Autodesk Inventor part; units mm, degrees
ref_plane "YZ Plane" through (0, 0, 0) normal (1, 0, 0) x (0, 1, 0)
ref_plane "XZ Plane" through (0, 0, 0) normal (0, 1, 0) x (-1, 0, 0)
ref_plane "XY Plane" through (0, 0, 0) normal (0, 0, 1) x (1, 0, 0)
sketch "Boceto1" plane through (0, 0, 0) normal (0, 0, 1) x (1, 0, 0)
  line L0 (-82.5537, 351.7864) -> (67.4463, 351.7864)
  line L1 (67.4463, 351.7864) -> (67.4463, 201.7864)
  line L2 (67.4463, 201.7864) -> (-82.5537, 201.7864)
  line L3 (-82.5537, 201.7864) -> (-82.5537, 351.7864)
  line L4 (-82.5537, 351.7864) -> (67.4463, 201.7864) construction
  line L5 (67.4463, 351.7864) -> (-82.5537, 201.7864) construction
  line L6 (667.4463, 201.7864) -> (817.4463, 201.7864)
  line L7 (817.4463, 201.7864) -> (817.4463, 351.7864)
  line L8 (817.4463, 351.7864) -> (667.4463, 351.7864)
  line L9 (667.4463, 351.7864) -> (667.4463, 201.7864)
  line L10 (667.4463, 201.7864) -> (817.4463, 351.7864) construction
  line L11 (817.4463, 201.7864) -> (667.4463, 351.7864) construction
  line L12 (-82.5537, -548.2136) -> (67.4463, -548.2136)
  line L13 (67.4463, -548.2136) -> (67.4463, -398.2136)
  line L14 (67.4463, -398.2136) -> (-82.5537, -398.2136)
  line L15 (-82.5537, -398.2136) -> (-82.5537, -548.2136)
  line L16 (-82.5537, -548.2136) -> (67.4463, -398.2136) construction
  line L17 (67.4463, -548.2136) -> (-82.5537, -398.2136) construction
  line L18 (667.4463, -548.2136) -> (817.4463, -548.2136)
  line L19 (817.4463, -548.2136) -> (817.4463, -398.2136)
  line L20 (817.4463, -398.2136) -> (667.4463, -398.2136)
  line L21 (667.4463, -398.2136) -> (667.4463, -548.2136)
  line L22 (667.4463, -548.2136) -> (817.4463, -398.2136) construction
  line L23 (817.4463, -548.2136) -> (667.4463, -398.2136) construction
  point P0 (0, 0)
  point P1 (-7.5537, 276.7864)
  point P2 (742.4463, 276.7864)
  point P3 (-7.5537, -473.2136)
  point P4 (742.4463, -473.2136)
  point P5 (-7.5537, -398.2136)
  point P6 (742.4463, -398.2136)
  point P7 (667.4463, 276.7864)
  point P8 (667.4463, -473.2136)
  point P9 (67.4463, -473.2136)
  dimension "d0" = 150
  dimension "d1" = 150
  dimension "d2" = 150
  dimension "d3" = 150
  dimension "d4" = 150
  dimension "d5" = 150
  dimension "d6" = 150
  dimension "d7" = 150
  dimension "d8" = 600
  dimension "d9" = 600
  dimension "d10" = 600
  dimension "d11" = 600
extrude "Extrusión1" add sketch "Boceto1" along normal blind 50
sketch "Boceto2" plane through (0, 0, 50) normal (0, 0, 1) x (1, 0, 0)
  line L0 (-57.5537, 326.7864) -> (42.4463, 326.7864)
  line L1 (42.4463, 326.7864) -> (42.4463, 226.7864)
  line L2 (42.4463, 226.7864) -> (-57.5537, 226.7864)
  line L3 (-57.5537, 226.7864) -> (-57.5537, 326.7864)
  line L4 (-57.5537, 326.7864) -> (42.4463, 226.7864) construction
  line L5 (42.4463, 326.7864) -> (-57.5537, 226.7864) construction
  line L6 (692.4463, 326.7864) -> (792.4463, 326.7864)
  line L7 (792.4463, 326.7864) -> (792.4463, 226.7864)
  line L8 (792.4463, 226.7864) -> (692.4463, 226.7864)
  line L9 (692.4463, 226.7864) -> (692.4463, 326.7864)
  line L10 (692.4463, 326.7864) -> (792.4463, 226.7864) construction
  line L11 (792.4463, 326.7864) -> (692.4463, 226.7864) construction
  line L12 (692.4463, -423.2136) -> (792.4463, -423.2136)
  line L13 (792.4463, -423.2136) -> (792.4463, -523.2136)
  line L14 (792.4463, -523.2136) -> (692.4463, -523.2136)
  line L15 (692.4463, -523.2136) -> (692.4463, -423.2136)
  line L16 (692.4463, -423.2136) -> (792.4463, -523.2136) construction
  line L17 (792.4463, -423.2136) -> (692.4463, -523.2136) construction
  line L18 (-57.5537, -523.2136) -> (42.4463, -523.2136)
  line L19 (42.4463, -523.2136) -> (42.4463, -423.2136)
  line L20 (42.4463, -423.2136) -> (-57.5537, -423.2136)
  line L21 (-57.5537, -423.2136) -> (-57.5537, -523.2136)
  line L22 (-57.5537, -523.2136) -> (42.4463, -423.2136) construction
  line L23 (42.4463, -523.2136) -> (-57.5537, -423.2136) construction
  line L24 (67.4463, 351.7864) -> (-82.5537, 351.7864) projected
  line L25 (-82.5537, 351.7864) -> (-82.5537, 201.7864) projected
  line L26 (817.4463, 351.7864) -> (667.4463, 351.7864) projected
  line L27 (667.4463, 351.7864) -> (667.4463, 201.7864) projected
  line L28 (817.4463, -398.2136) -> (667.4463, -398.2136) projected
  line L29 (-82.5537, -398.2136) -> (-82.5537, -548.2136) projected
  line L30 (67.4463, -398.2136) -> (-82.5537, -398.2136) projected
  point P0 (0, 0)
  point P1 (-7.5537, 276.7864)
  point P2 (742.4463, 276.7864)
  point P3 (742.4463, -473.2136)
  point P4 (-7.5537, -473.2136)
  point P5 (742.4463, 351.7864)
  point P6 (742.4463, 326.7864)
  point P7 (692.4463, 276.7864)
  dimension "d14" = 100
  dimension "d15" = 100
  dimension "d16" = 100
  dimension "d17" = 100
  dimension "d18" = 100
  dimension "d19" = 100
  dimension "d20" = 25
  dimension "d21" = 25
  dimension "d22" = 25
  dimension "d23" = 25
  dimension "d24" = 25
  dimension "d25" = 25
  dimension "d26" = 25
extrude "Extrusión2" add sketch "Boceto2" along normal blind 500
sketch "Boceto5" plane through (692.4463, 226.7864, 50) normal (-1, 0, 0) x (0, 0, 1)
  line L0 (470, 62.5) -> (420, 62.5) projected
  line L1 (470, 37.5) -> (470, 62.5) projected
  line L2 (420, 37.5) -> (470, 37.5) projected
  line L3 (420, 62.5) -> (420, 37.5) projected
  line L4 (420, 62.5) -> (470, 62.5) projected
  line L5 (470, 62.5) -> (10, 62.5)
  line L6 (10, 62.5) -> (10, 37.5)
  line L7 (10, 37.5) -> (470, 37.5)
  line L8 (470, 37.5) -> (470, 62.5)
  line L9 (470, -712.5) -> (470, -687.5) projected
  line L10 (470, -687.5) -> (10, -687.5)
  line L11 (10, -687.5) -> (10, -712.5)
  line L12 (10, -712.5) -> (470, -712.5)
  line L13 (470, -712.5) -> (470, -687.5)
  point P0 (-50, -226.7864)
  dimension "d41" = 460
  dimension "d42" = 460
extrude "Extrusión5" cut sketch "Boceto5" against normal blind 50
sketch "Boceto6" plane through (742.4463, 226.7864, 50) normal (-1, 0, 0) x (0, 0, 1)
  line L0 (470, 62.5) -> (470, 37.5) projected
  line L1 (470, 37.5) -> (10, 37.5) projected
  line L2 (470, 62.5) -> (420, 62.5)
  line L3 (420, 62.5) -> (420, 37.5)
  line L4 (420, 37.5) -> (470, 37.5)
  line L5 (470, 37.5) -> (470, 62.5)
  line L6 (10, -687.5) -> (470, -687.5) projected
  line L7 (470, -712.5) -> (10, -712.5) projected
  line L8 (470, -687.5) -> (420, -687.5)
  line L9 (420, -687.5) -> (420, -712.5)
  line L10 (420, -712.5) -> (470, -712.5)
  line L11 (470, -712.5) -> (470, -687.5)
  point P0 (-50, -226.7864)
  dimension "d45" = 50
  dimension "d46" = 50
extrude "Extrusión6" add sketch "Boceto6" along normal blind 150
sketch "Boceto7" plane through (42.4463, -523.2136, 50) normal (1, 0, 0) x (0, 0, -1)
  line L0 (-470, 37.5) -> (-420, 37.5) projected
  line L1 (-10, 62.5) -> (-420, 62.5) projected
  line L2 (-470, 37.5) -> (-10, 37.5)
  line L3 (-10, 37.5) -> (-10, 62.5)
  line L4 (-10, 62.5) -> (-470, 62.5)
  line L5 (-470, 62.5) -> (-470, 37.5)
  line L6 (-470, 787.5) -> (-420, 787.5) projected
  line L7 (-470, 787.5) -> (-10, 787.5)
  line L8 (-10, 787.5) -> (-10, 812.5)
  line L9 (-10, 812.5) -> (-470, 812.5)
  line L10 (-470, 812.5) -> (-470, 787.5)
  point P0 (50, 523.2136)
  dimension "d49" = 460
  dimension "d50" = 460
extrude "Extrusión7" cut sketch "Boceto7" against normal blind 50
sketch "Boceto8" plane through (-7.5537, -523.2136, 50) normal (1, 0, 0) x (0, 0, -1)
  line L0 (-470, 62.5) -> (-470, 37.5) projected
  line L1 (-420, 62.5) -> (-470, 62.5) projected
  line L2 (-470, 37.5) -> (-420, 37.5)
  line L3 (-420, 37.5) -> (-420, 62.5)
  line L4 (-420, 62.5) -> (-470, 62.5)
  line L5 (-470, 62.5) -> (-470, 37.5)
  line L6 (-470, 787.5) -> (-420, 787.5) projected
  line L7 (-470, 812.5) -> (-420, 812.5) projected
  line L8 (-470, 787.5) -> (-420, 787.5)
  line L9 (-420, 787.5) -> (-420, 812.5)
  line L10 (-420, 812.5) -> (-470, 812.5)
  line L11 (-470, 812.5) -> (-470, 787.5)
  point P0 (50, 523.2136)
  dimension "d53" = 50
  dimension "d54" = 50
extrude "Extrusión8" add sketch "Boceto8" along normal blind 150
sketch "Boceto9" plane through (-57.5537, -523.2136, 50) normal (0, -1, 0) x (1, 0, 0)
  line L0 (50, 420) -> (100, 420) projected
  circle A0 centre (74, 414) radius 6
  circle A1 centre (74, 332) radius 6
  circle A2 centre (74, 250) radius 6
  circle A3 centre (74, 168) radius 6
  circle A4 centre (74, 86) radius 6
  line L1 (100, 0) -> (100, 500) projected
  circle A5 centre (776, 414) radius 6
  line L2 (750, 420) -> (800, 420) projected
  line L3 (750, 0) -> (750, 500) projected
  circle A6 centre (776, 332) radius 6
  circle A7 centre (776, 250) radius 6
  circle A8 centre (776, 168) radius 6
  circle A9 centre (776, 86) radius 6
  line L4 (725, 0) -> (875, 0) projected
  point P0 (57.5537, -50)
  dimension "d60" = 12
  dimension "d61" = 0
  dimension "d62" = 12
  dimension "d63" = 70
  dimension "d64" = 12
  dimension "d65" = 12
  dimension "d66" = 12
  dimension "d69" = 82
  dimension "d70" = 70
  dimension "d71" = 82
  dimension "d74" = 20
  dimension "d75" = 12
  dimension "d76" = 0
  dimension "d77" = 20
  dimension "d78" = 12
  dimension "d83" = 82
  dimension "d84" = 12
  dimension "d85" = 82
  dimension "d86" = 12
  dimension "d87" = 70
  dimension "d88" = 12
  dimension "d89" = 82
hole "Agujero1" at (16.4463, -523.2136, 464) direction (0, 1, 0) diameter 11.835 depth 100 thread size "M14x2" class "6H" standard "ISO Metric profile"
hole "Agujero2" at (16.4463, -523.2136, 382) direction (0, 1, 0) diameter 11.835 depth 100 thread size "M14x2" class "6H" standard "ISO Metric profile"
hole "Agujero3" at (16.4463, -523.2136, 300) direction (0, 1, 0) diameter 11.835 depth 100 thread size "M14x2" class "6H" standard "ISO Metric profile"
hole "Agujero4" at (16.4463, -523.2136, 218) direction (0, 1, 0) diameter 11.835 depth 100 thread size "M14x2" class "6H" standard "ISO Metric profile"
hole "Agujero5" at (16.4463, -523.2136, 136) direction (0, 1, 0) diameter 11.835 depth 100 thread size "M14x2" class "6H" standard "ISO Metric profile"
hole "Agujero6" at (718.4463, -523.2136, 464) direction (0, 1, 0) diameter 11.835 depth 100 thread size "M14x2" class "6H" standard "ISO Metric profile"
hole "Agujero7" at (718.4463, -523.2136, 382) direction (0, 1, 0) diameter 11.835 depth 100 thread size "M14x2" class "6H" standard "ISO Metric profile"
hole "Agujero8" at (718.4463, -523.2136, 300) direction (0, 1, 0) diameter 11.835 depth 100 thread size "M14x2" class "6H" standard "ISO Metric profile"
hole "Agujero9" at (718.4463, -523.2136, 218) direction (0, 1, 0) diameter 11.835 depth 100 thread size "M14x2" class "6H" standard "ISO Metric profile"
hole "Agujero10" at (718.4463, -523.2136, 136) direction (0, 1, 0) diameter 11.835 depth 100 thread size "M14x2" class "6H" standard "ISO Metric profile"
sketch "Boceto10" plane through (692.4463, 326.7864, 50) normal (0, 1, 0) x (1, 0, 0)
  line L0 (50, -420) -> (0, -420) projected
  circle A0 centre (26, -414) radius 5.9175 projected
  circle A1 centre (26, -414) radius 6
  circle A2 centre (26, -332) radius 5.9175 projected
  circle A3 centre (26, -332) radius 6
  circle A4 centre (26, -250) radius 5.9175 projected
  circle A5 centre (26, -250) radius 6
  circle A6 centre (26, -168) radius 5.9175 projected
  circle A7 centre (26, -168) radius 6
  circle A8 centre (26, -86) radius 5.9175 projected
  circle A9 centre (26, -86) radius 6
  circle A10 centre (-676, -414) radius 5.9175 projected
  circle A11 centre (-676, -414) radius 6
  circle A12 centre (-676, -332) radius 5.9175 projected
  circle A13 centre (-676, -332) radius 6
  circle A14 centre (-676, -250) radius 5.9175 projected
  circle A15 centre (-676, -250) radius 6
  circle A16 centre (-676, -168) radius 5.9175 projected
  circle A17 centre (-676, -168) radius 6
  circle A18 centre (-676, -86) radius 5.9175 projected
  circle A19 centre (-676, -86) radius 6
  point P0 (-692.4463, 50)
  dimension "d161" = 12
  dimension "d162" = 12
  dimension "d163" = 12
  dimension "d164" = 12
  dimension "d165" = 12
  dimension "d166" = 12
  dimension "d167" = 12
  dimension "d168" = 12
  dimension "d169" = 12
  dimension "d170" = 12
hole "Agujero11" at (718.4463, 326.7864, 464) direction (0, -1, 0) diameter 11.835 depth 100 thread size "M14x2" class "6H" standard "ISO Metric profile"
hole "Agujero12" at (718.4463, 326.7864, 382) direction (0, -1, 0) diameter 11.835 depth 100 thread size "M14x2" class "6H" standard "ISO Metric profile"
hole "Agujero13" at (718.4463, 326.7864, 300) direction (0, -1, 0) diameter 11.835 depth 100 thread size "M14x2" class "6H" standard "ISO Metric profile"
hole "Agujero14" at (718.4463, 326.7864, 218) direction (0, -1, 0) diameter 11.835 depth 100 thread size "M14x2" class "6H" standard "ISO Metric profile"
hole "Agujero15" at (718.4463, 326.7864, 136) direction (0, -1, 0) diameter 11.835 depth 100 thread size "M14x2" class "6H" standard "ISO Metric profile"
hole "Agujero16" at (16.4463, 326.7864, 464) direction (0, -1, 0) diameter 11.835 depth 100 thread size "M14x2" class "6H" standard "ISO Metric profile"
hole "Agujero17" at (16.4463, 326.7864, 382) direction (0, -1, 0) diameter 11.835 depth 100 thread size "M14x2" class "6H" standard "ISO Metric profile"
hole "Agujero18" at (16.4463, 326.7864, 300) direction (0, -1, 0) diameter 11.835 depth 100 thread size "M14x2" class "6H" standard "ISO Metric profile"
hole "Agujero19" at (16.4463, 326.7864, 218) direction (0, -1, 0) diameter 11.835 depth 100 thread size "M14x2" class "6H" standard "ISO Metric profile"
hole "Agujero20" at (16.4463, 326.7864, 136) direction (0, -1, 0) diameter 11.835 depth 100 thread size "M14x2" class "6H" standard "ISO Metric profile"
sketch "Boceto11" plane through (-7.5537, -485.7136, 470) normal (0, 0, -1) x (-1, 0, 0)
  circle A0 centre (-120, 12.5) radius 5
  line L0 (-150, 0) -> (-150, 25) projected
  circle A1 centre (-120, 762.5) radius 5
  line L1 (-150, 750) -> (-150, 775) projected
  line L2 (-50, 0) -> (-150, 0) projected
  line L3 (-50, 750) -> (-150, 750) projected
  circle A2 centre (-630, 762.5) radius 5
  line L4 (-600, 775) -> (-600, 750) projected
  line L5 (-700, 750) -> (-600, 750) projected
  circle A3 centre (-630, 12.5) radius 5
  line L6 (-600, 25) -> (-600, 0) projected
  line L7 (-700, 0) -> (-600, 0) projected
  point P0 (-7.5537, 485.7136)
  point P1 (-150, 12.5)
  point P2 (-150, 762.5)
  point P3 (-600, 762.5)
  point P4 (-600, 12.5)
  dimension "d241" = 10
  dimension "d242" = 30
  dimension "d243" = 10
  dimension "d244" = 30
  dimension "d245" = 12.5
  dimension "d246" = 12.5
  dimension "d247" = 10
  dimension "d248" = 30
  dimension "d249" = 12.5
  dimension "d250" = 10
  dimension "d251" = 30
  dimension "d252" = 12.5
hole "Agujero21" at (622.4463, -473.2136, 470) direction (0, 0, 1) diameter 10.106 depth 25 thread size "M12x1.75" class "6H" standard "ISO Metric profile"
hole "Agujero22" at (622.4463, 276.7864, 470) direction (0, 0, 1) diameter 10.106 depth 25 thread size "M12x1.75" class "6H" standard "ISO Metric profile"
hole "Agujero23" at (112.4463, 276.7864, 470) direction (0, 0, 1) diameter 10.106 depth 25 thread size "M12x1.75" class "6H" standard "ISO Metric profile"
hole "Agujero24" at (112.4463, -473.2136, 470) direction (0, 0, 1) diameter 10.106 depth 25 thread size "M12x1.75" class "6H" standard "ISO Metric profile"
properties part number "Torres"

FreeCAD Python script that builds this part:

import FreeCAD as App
import Part
import Sketcher

V = App.Vector
Q = App.Units.Quantity


def add_polygon(sketch, points):
    """Adds a closed chain of lines whose ends are joined by coincident constraints."""
    first, n = sketch.GeometryCount, len(points)
    for a, b in zip(points, points[1:] + points[:1]):
        sketch.addGeometry(Part.LineSegment(App.Vector(*a, 0), App.Vector(*b, 0)), False)
    for i in range(n):
        sketch.addConstraint(Sketcher.Constraint("Coincident", first + i, 2, first + (i + 1) % n, 1))

doc = App.newDocument("Part")
body = doc.addObject("PartDesign::Body", "Body")
body.AllowCompound = True

# Sketch on XY plane
sketch1 = doc.addObject("Sketcher::SketchObject", "Sketch")
body.addObject(sketch1)
sketch1.AttachmentSupport = (doc.XY_Plane, [""])
sketch1.MapMode = "FlatFace"
add_polygon(sketch1, [(67, 352), (-83, 352), (-83, 202), (67, 202)])  # lines 0-3
add_polygon(sketch1, [(667, 352), (667, 202), (817, 202), (817, 352)])  # lines 4-7
add_polygon(sketch1, [(-83, -398), (-83, -548), (67, -548), (67, -398)])  # lines 8-11
add_polygon(sketch1, [(667, -398), (667, -548), (817, -548), (817, -398)])  # lines 12-15
sketch1.addConstraint([
    Sketcher.Constraint("Horizontal", 0),
    Sketcher.Constraint("Vertical", 1),
    Sketcher.Constraint("Horizontal", 2),
    Sketcher.Constraint("Vertical", 3),
    Sketcher.Constraint("Vertical", 4),
    Sketcher.Constraint("Horizontal", 5),
    Sketcher.Constraint("Vertical", 6),
    Sketcher.Constraint("Horizontal", 7),
    Sketcher.Constraint("Vertical", 8),
    Sketcher.Constraint("Horizontal", 9),
    Sketcher.Constraint("Vertical", 10),
    Sketcher.Constraint("Horizontal", 11),
    Sketcher.Constraint("Vertical", 12),
    Sketcher.Constraint("Horizontal", 13),
    Sketcher.Constraint("Vertical", 14),
    Sketcher.Constraint("Horizontal", 15),
    Sketcher.Constraint("Horizontal", 2, 2, 4, 2),
    Sketcher.Constraint("Horizontal", 3, 2, 6, 2),
    Sketcher.Constraint("Horizontal", 9, 2, 12, 2),
    Sketcher.Constraint("Horizontal", 11, 2, 14, 2),
    Sketcher.Constraint("Vertical", 1, 2, 8, 2),
    Sketcher.Constraint("Vertical", 3, 2, 9, 2),
    Sketcher.Constraint("Vertical", 7, 2, 12, 2),
    Sketcher.Constraint("Vertical", 6, 2, 13, 2),
    Sketcher.Constraint("Equal", 2, 5),
    Sketcher.Constraint("Equal", 15, 1),
    Sketcher.Constraint("Equal", 6, 8),
    Sketcher.Constraint("DistanceX", 0, 2, 0, 1, Q("150 mm")),
    Sketcher.Constraint("DistanceX", 2, 2, 4, 2, Q("600 mm")),
    Sketcher.Constraint("DistanceY", 10, 2, 2, 2, Q("600 mm")),
    Sketcher.Constraint("DistanceX", 0, 2, -1, 1, Q("82.5537 mm")),
    Sketcher.Constraint("DistanceY", -1, 1, 0, 2, Q("351.7864 mm")),
])
pad1 = doc.addObject("PartDesign::Pad", "Pad")
body.addObject(pad1)
pad1.Profile = sketch1
pad1.Length = 50

# Sketch on XY plane
sketch2 = doc.addObject("Sketcher::SketchObject", "Sketch001")
body.addObject(sketch2)
sketch2.AttachmentSupport = (doc.XY_Plane, [""])
sketch2.MapMode = "FlatFace"
sketch2.AttachmentOffset = App.Placement(V(0, 0, 50), App.Rotation())
add_polygon(sketch2, [(42, 327), (-58, 327), (-58, 227), (42, 227)])  # lines 0-3
add_polygon(sketch2, [(792, 327), (692, 327), (692, 227), (792, 227)])  # lines 4-7
add_polygon(sketch2, [(792, -423), (692, -423), (692, -523), (792, -523)])  # lines 8-11
add_polygon(sketch2, [(-58, -423), (-58, -523), (42, -523), (42, -423)])  # lines 12-15
sketch2.addConstraint([
    Sketcher.Constraint("Horizontal", 0),
    Sketcher.Constraint("Vertical", 1),
    Sketcher.Constraint("Horizontal", 2),
    Sketcher.Constraint("Vertical", 3),
    Sketcher.Constraint("Horizontal", 4),
    Sketcher.Constraint("Vertical", 5),
    Sketcher.Constraint("Horizontal", 6),
    Sketcher.Constraint("Vertical", 7),
    Sketcher.Constraint("Horizontal", 8),
    Sketcher.Constraint("Vertical", 9),
    Sketcher.Constraint("Horizontal", 10),
    Sketcher.Constraint("Vertical", 11),
    Sketcher.Constraint("Vertical", 12),
    Sketcher.Constraint("Horizontal", 13),
    Sketcher.Constraint("Vertical", 14),
    Sketcher.Constraint("Horizontal", 15),
    Sketcher.Constraint("Horizontal", 3, 2, 4, 2),
    Sketcher.Constraint("Horizontal", 2, 2, 5, 2),
    Sketcher.Constraint("Horizontal", 10, 2, 12, 2),
    Sketcher.Constraint("Horizontal", 11, 2, 14, 2),
    Sketcher.Constraint("Vertical", 5, 2, 8, 2),
    Sketcher.Constraint("Vertical", 7, 2, 10, 2),
    Sketcher.Constraint("Vertical", 1, 2, 12, 2),
    Sketcher.Constraint("Vertical", 3, 2, 13, 2),
    Sketcher.Constraint("Equal", 2, 4),
    Sketcher.Constraint("Equal", 15, 1),
    Sketcher.Constraint("Equal", 7, 9),
    Sketcher.Constraint("DistanceX", 0, 2, 0, 1, Q("100 mm")),
    Sketcher.Constraint("DistanceX", 3, 2, 4, 2, Q("650 mm")),
    Sketcher.Constraint("DistanceY", 8, 2, 5, 2, Q("650 mm")),
    Sketcher.Constraint("DistanceX", 0, 2, -1, 1, Q("57.5537 mm")),
    Sketcher.Constraint("DistanceY", -1, 1, 0, 2, Q("326.7864 mm")),
])
pad2 = doc.addObject("PartDesign::Pad", "Pad001")
body.addObject(pad2)
pad2.Profile = sketch2
pad2.Length = 500

# Sketch on YZ plane
sketch3 = doc.addObject("Sketcher::SketchObject", "Sketch002")
body.addObject(sketch3)
sketch3.AttachmentSupport = (doc.YZ_Plane, [""])
sketch3.MapMode = "FlatFace"
sketch3.AttachmentOffset = App.Placement(V(0, 0, 692.4463), App.Rotation())
add_polygon(sketch3, [(264, 520), (289, 520), (289, 60), (264, 60)])  # lines 0-3
add_polygon(sketch3, [(-486, 60), (-486, 520), (-461, 520), (-461, 60)])  # lines 4-7
sketch3.addConstraint([
    Sketcher.Constraint("Horizontal", 0),
    Sketcher.Constraint("Vertical", 1),
    Sketcher.Constraint("Horizontal", 2),
    Sketcher.Constraint("Vertical", 3),
    Sketcher.Constraint("Vertical", 4),
    Sketcher.Constraint("Horizontal", 5),
    Sketcher.Constraint("Vertical", 6),
    Sketcher.Constraint("Horizontal", 7),
    Sketcher.Constraint("Horizontal", 3, 2, 4, 2),
    Sketcher.Constraint("Horizontal", 2, 2, 6, 2),
    Sketcher.Constraint("Equal", 2, 5),
    Sketcher.Constraint("DistanceY", 1, 2, 1, 1, Q("460 mm")),
    Sketcher.Constraint("DistanceX", 0, 1, 0, 2, Q("25 mm")),
    Sketcher.Constraint("DistanceY", -1, 1, 0, 2, Q("520 mm")),
    Sketcher.Constraint("DistanceX", 4, 2, 3, 2, Q("750 mm")),
    Sketcher.Constraint("DistanceX", -1, 1, 0, 2, Q("289.2864 mm")),
])
pocket1 = doc.addObject("PartDesign::Pocket", "Pocket")
body.addObject(pocket1)
pocket1.Profile = sketch3
pocket1.Length = 50
pocket1.Reversed = True

# Sketch on YZ plane
sketch4 = doc.addObject("Sketcher::SketchObject", "Sketch003")
body.addObject(sketch4)
sketch4.AttachmentSupport = (doc.YZ_Plane, [""])
sketch4.MapMode = "FlatFace"
sketch4.AttachmentOffset = App.Placement(V(0, 0, 742.4463), App.Rotation())
add_polygon(sketch4, [(264, 520), (289, 520), (289, 470), (264, 470)])  # lines 0-3
add_polygon(sketch4, [(-461, 520), (-461, 470), (-486, 470), (-486, 520)])  # lines 4-7
sketch4.addConstraint([
    Sketcher.Constraint("Horizontal", 0),
    Sketcher.Constraint("Vertical", 1),
    Sketcher.Constraint("Horizontal", 2),
    Sketcher.Constraint("Vertical", 3),
    Sketcher.Constraint("Vertical", 4),
    Sketcher.Constraint("Horizontal", 5),
    Sketcher.Constraint("Vertical", 6),
    Sketcher.Constraint("Horizontal", 7),
    Sketcher.Constraint("Horizontal", 2, 2, 4, 2),
    Sketcher.Constraint("Horizontal", 3, 2, 6, 2),
    Sketcher.Constraint("Equal", 2, 5),
    Sketcher.Constraint("DistanceY", 1, 2, 1, 1, Q("50 mm")),
    Sketcher.Constraint("DistanceX", 0, 1, 0, 2, Q("25 mm")),
    Sketcher.Constraint("DistanceY", -1, 1, 0, 2, Q("520 mm")),
    Sketcher.Constraint("DistanceX", 4, 2, 2, 2, Q("725 mm")),
    Sketcher.Constraint("DistanceX", -1, 1, 0, 2, Q("289.2864 mm")),
])
pad3 = doc.addObject("PartDesign::Pad", "Pad002")
body.addObject(pad3)
pad3.Profile = sketch4
pad3.Length = 150
pad3.Reversed = True

# Sketch on YZ plane
sketch5 = doc.addObject("Sketcher::SketchObject", "Sketch004")
body.addObject(sketch5)
sketch5.AttachmentSupport = (doc.YZ_Plane, [""])
sketch5.MapMode = "FlatFace"
sketch5.AttachmentOffset = App.Placement(V(0, 0, 42.4463), App.Rotation())
add_polygon(sketch5, [(-461, 520), (-486, 520), (-486, 60), (-461, 60)])  # lines 0-3
add_polygon(sketch5, [(289, 520), (264, 520), (264, 60), (289, 60)])  # lines 4-7
sketch5.addConstraint([
    Sketcher.Constraint("Horizontal", 0),
    Sketcher.Constraint("Vertical", 1),
    Sketcher.Constraint("Horizontal", 2),
    Sketcher.Constraint("Vertical", 3),
    Sketcher.Constraint("Horizontal", 4),
    Sketcher.Constraint("Vertical", 5),
    Sketcher.Constraint("Horizontal", 6),
    Sketcher.Constraint("Vertical", 7),
    Sketcher.Constraint("Horizontal", 3, 2, 4, 2),
    Sketcher.Constraint("Horizontal", 2, 2, 5, 2),
    Sketcher.Constraint("Equal", 2, 4),
    Sketcher.Constraint("DistanceY", 1, 2, 1, 1, Q("460 mm")),
    Sketcher.Constraint("DistanceX", 0, 2, 0, 1, Q("25 mm")),
    Sketcher.Constraint("DistanceY", -1, 1, 0, 2, Q("520 mm")),
    Sketcher.Constraint("DistanceX", 3, 2, 4, 2, Q("725 mm")),
    Sketcher.Constraint("DistanceX", 0, 2, -1, 1, Q("485.7136 mm")),
])
pocket2 = doc.addObject("PartDesign::Pocket", "Pocket001")
body.addObject(pocket2)
pocket2.Profile = sketch5
pocket2.Length = 50

# Sketch on YZ plane
sketch6 = doc.addObject("Sketcher::SketchObject", "Sketch005")
body.addObject(sketch6)
sketch6.AttachmentSupport = (doc.YZ_Plane, [""])
sketch6.MapMode = "FlatFace"
sketch6.AttachmentOffset = App.Placement(V(0, 0, -7.5537), App.Rotation())
add_polygon(sketch6, [(-461, 470), (-461, 520), (-486, 520), (-486, 470)])  # lines 0-3
add_polygon(sketch6, [(289, 520), (264, 520), (264, 470), (289, 470)])  # lines 4-7
sketch6.addConstraint([
    Sketcher.Constraint("Vertical", 0),
    Sketcher.Constraint("Horizontal", 1),
    Sketcher.Constraint("Vertical", 2),
    Sketcher.Constraint("Horizontal", 3),
    Sketcher.Constraint("Horizontal", 4),
    Sketcher.Constraint("Vertical", 5),
    Sketcher.Constraint("Horizontal", 6),
    Sketcher.Constraint("Vertical", 7),
    Sketcher.Constraint("Horizontal", 1, 2, 4, 2),
    Sketcher.Constraint("Horizontal", 3, 2, 5, 2),
    Sketcher.Constraint("Equal", 3, 4),
    Sketcher.Constraint("DistanceY", 0, 1, 0, 2, Q("50 mm")),
    Sketcher.Constraint("DistanceX", 1, 2, 1, 1, Q("25 mm")),
    Sketcher.Constraint("DistanceY", -1, 1, 0, 2, Q("520 mm")),
    Sketcher.Constraint("DistanceX", 0, 2, 4, 2, Q("725 mm")),
    Sketcher.Constraint("DistanceX", 0, 2, -1, 1, Q("460.7136 mm")),
])
pad4 = doc.addObject("PartDesign::Pad", "Pad003")
body.addObject(pad4)
pad4.Profile = sketch6
pad4.Length = 150

# Sketch on XZ plane
sketch7 = doc.addObject("Sketcher::SketchObject", "Sketch006")
body.addObject(sketch7)
sketch7.AttachmentSupport = (doc.XZ_Plane, [""])
sketch7.MapMode = "FlatFace"
sketch7.AttachmentOffset = App.Placement(V(0, 0, 523.2136), App.Rotation())
sketch7.addGeometry(Part.Circle(V(16, 464, 0), V(0, 0, 1), 6), False)
sketch7.addConstraint([
    Sketcher.Constraint("Diameter", 0, Q("11.835 mm")),
    Sketcher.Constraint("DistanceY", -1, 1, 0, 3, Q("464 mm")),
    Sketcher.Constraint("DistanceX", -1, 1, 0, 3, Q("16.4463 mm")),
])
doc.recompute()
hole = doc.addObject("PartDesign::Hole", "Hole")
body.addObject(hole)
hole.Profile = sketch7
hole.ThreadType = "None"
hole.Diameter = 11.835
hole.DepthType = "Dimension"
hole.Depth = 100
hole.DrillPoint = "Flat"

# Sketch on XZ plane
sketch8 = doc.addObject("Sketcher::SketchObject", "Sketch007")
body.addObject(sketch8)
sketch8.AttachmentSupport = (doc.XZ_Plane, [""])
sketch8.MapMode = "FlatFace"
sketch8.AttachmentOffset = App.Placement(V(0, 0, 523.2136), App.Rotation())
sketch8.addGeometry(Part.Circle(V(16, 382, 0), V(0, 0, 1), 6), False)
sketch8.addConstraint([
    Sketcher.Constraint("Diameter", 0, Q("11.835 mm")),
    Sketcher.Constraint("DistanceY", -1, 1, 0, 3, Q("382 mm")),
    Sketcher.Constraint("DistanceX", -1, 1, 0, 3, Q("16.4463 mm")),
])
doc.recompute()
hole2 = doc.addObject("PartDesign::Hole", "Hole001")
body.addObject(hole2)
hole2.Profile = sketch8
hole2.ThreadType = "None"
hole2.Diameter = 11.835
hole2.DepthType = "Dimension"
hole2.Depth = 100
hole2.DrillPoint = "Flat"

# Sketch on XZ plane
sketch9 = doc.addObject("Sketcher::SketchObject", "Sketch008")
body.addObject(sketch9)
sketch9.AttachmentSupport = (doc.XZ_Plane, [""])
sketch9.MapMode = "FlatFace"
sketch9.AttachmentOffset = App.Placement(V(0, 0, 523.2136), App.Rotation())
sketch9.addGeometry(Part.Circle(V(16, 300, 0), V(0, 0, 1), 6), False)
sketch9.addConstraint([
    Sketcher.Constraint("Diameter", 0, Q("11.835 mm")),
    Sketcher.Constraint("DistanceY", -1, 1, 0, 3, Q("300 mm")),
    Sketcher.Constraint("DistanceX", -1, 1, 0, 3, Q("16.4463 mm")),
])
doc.recompute()
hole3 = doc.addObject("PartDesign::Hole", "Hole002")
body.addObject(hole3)
hole3.Profile = sketch9
hole3.ThreadType = "None"
hole3.Diameter = 11.835
hole3.DepthType = "Dimension"
hole3.Depth = 100
hole3.DrillPoint = "Flat"

# Sketch on XZ plane
sketch10 = doc.addObject("Sketcher::SketchObject", "Sketch009")
body.addObject(sketch10)
sketch10.AttachmentSupport = (doc.XZ_Plane, [""])
sketch10.MapMode = "FlatFace"
sketch10.AttachmentOffset = App.Placement(V(0, 0, 523.2136), App.Rotation())
sketch10.addGeometry(Part.Circle(V(16, 218, 0), V(0, 0, 1), 6), False)
sketch10.addConstraint([
    Sketcher.Constraint("Diameter", 0, Q("11.835 mm")),
    Sketcher.Constraint("DistanceY", -1, 1, 0, 3, Q("218 mm")),
    Sketcher.Constraint("DistanceX", -1, 1, 0, 3, Q("16.4463 mm")),
])
doc.recompute()
hole4 = doc.addObject("PartDesign::Hole", "Hole003")
body.addObject(hole4)
hole4.Profile = sketch10
hole4.ThreadType = "None"
hole4.Diameter = 11.835
hole4.DepthType = "Dimension"
hole4.Depth = 100
hole4.DrillPoint = "Flat"

# Sketch on XZ plane
sketch11 = doc.addObject("Sketcher::SketchObject", "Sketch010")
body.addObject(sketch11)
sketch11.AttachmentSupport = (doc.XZ_Plane, [""])
sketch11.MapMode = "FlatFace"
sketch11.AttachmentOffset = App.Placement(V(0, 0, 523.2136), App.Rotation())
sketch11.addGeometry(Part.Circle(V(16, 136, 0), V(0, 0, 1), 6), False)
sketch11.addConstraint([
    Sketcher.Constraint("Diameter", 0, Q("11.835 mm")),
    Sketcher.Constraint("DistanceY", -1, 1, 0, 3, Q("136 mm")),
    Sketcher.Constraint("DistanceX", -1, 1, 0, 3, Q("16.4463 mm")),
])
doc.recompute()
hole5 = doc.addObject("PartDesign::Hole", "Hole004")
body.addObject(hole5)
hole5.Profile = sketch11
hole5.ThreadType = "None"
hole5.Diameter = 11.835
hole5.DepthType = "Dimension"
hole5.Depth = 100
hole5.DrillPoint = "Flat"

# Sketch on XZ plane
sketch12 = doc.addObject("Sketcher::SketchObject", "Sketch011")
body.addObject(sketch12)
sketch12.AttachmentSupport = (doc.XZ_Plane, [""])
sketch12.MapMode = "FlatFace"
sketch12.AttachmentOffset = App.Placement(V(0, 0, 523.2136), App.Rotation())
sketch12.addGeometry(Part.Circle(V(718, 464, 0), V(0, 0, 1), 6), False)
sketch12.addConstraint([
    Sketcher.Constraint("Diameter", 0, Q("11.835 mm")),
    Sketcher.Constraint("DistanceY", -1, 1, 0, 3, Q("464 mm")),
    Sketcher.Constraint("DistanceX", -1, 1, 0, 3, Q("718.4463 mm")),
])
doc.recompute()
hole6 = doc.addObject("PartDesign::Hole", "Hole005")
body.addObject(hole6)
hole6.Profile = sketch12
hole6.ThreadType = "None"
hole6.Diameter = 11.835
hole6.DepthType = "Dimension"
hole6.Depth = 100
hole6.DrillPoint = "Flat"

# Sketch on XZ plane
sketch13 = doc.addObject("Sketcher::SketchObject", "Sketch012")
body.addObject(sketch13)
sketch13.AttachmentSupport = (doc.XZ_Plane, [""])
sketch13.MapMode = "FlatFace"
sketch13.AttachmentOffset = App.Placement(V(0, 0, 523.2136), App.Rotation())
sketch13.addGeometry(Part.Circle(V(718, 382, 0), V(0, 0, 1), 6), False)
sketch13.addConstraint([
    Sketcher.Constraint("Diameter", 0, Q("11.835 mm")),
    Sketcher.Constraint("DistanceY", -1, 1, 0, 3, Q("382 mm")),
    Sketcher.Constraint("DistanceX", -1, 1, 0, 3, Q("718.4463 mm")),
])
doc.recompute()
hole7 = doc.addObject("PartDesign::Hole", "Hole006")
body.addObject(hole7)
hole7.Profile = sketch13
hole7.ThreadType = "None"
hole7.Diameter = 11.835
hole7.DepthType = "Dimension"
hole7.Depth = 100
hole7.DrillPoint = "Flat"

# Sketch on XZ plane
sketch14 = doc.addObject("Sketcher::SketchObject", "Sketch013")
body.addObject(sketch14)
sketch14.AttachmentSupport = (doc.XZ_Plane, [""])
sketch14.MapMode = "FlatFace"
sketch14.AttachmentOffset = App.Placement(V(0, 0, 523.2136), App.Rotation())
sketch14.addGeometry(Part.Circle(V(718, 300, 0), V(0, 0, 1), 6), False)
sketch14.addConstraint([
    Sketcher.Constraint("Diameter", 0, Q("11.835 mm")),
    Sketcher.Constraint("DistanceY", -1, 1, 0, 3, Q("300 mm")),
    Sketcher.Constraint("DistanceX", -1, 1, 0, 3, Q("718.4463 mm")),
])
doc.recompute()
hole8 = doc.addObject("PartDesign::Hole", "Hole007")
body.addObject(hole8)
hole8.Profile = sketch14
hole8.ThreadType = "None"
hole8.Diameter = 11.835
hole8.DepthType = "Dimension"
hole8.Depth = 100
hole8.DrillPoint = "Flat"

# Sketch on XZ plane
sketch15 = doc.addObject("Sketcher::SketchObject", "Sketch014")
body.addObject(sketch15)
sketch15.AttachmentSupport = (doc.XZ_Plane, [""])
sketch15.MapMode = "FlatFace"
sketch15.AttachmentOffset = App.Placement(V(0, 0, 523.2136), App.Rotation())
sketch15.addGeometry(Part.Circle(V(718, 218, 0), V(0, 0, 1), 6), False)
sketch15.addConstraint([
    Sketcher.Constraint("Diameter", 0, Q("11.835 mm")),
    Sketcher.Constraint("DistanceY", -1, 1, 0, 3, Q("218 mm")),
    Sketcher.Constraint("DistanceX", -1, 1, 0, 3, Q("718.4463 mm")),
])
doc.recompute()
hole9 = doc.addObject("PartDesign::Hole", "Hole008")
body.addObject(hole9)
hole9.Profile = sketch15
hole9.ThreadType = "None"
hole9.Diameter = 11.835
hole9.DepthType = "Dimension"
hole9.Depth = 100
hole9.DrillPoint = "Flat"

# Sketch on XZ plane
sketch16 = doc.addObject("Sketcher::SketchObject", "Sketch015")
body.addObject(sketch16)
sketch16.AttachmentSupport = (doc.XZ_Plane, [""])
sketch16.MapMode = "FlatFace"
sketch16.AttachmentOffset = App.Placement(V(0, 0, 523.2136), App.Rotation())
sketch16.addGeometry(Part.Circle(V(718, 136, 0), V(0, 0, 1), 6), False)
sketch16.addConstraint([
    Sketcher.Constraint("Diameter", 0, Q("11.835 mm")),
    Sketcher.Constraint("DistanceY", -1, 1, 0, 3, Q("136 mm")),
    Sketcher.Constraint("DistanceX", -1, 1, 0, 3, Q("718.4463 mm")),
])
doc.recompute()
hole10 = doc.addObject("PartDesign::Hole", "Hole009")
body.addObject(hole10)
hole10.Profile = sketch16
hole10.ThreadType = "None"
hole10.Diameter = 11.835
hole10.DepthType = "Dimension"
hole10.Depth = 100
hole10.DrillPoint = "Flat"

# Sketch on XZ plane
sketch17 = doc.addObject("Sketcher::SketchObject", "Sketch016")
body.addObject(sketch17)
sketch17.AttachmentSupport = (doc.XZ_Plane, [""])
sketch17.MapMode = "FlatFace"
sketch17.AttachmentOffset = App.Placement(V(0, 0, -326.7864), App.Rotation())
sketch17.addGeometry(Part.Circle(V(718, 464, 0), V(0, 0, 1), 6), False)
sketch17.addConstraint([
    Sketcher.Constraint("Diameter", 0, Q("11.835 mm")),
    Sketcher.Constraint("DistanceY", -1, 1, 0, 3, Q("464 mm")),
    Sketcher.Constraint("DistanceX", -1, 1, 0, 3, Q("718.4463 mm")),
])
doc.recompute()
hole11 = doc.addObject("PartDesign::Hole", "Hole010")
body.addObject(hole11)
hole11.Profile = sketch17
hole11.ThreadType = "None"
hole11.Diameter = 11.835
hole11.DepthType = "Dimension"
hole11.Depth = 100
hole11.DrillPoint = "Flat"
hole11.Reversed = True

# Sketch on XZ plane
sketch18 = doc.addObject("Sketcher::SketchObject", "Sketch017")
body.addObject(sketch18)
sketch18.AttachmentSupport = (doc.XZ_Plane, [""])
sketch18.MapMode = "FlatFace"
sketch18.AttachmentOffset = App.Placement(V(0, 0, -326.7864), App.Rotation())
sketch18.addGeometry(Part.Circle(V(718, 382, 0), V(0, 0, 1), 6), False)
sketch18.addConstraint([
    Sketcher.Constraint("Diameter", 0, Q("11.835 mm")),
    Sketcher.Constraint("DistanceY", -1, 1, 0, 3, Q("382 mm")),
    Sketcher.Constraint("DistanceX", -1, 1, 0, 3, Q("718.4463 mm")),
])
doc.recompute()
hole12 = doc.addObject("PartDesign::Hole", "Hole011")
body.addObject(hole12)
hole12.Profile = sketch18
hole12.ThreadType = "None"
hole12.Diameter = 11.835
hole12.DepthType = "Dimension"
hole12.Depth = 100
hole12.DrillPoint = "Flat"
hole12.Reversed = True

# Sketch on XZ plane
sketch19 = doc.addObject("Sketcher::SketchObject", "Sketch018")
body.addObject(sketch19)
sketch19.AttachmentSupport = (doc.XZ_Plane, [""])
sketch19.MapMode = "FlatFace"
sketch19.AttachmentOffset = App.Placement(V(0, 0, -326.7864), App.Rotation())
sketch19.addGeometry(Part.Circle(V(718, 300, 0), V(0, 0, 1), 6), False)
sketch19.addConstraint([
    Sketcher.Constraint("Diameter", 0, Q("11.835 mm")),
    Sketcher.Constraint("DistanceY", -1, 1, 0, 3, Q("300 mm")),
    Sketcher.Constraint("DistanceX", -1, 1, 0, 3, Q("718.4463 mm")),
])
doc.recompute()
hole13 = doc.addObject("PartDesign::Hole", "Hole012")
body.addObject(hole13)
hole13.Profile = sketch19
hole13.ThreadType = "None"
hole13.Diameter = 11.835
hole13.DepthType = "Dimension"
hole13.Depth = 100
hole13.DrillPoint = "Flat"
hole13.Reversed = True

# Sketch on XZ plane
sketch20 = doc.addObject("Sketcher::SketchObject", "Sketch019")
body.addObject(sketch20)
sketch20.AttachmentSupport = (doc.XZ_Plane, [""])
sketch20.MapMode = "FlatFace"
sketch20.AttachmentOffset = App.Placement(V(0, 0, -326.7864), App.Rotation())
sketch20.addGeometry(Part.Circle(V(718, 218, 0), V(0, 0, 1), 6), False)
sketch20.addConstraint([
    Sketcher.Constraint("Diameter", 0, Q("11.835 mm")),
    Sketcher.Constraint("DistanceY", -1, 1, 0, 3, Q("218 mm")),
    Sketcher.Constraint("DistanceX", -1, 1, 0, 3, Q("718.4463 mm")),
])
doc.recompute()
hole14 = doc.addObject("PartDesign::Hole", "Hole013")
body.addObject(hole14)
hole14.Profile = sketch20
hole14.ThreadType = "None"
hole14.Diameter = 11.835
hole14.DepthType = "Dimension"
hole14.Depth = 100
hole14.DrillPoint = "Flat"
hole14.Reversed = True

# Sketch on XZ plane
sketch21 = doc.addObject("Sketcher::SketchObject", "Sketch020")
body.addObject(sketch21)
sketch21.AttachmentSupport = (doc.XZ_Plane, [""])
sketch21.MapMode = "FlatFace"
sketch21.AttachmentOffset = App.Placement(V(0, 0, -326.7864), App.Rotation())
sketch21.addGeometry(Part.Circle(V(718, 136, 0), V(0, 0, 1), 6), False)
sketch21.addConstraint([
    Sketcher.Constraint("Diameter", 0, Q("11.835 mm")),
    Sketcher.Constraint("DistanceY", -1, 1, 0, 3, Q("136 mm")),
    Sketcher.Constraint("DistanceX", -1, 1, 0, 3, Q("718.4463 mm")),
])
doc.recompute()
hole15 = doc.addObject("PartDesign::Hole", "Hole014")
body.addObject(hole15)
hole15.Profile = sketch21
hole15.ThreadType = "None"
hole15.Diameter = 11.835
hole15.DepthType = "Dimension"
hole15.Depth = 100
hole15.DrillPoint = "Flat"
hole15.Reversed = True

# Sketch on XZ plane
sketch22 = doc.addObject("Sketcher::SketchObject", "Sketch021")
body.addObject(sketch22)
sketch22.AttachmentSupport = (doc.XZ_Plane, [""])
sketch22.MapMode = "FlatFace"
sketch22.AttachmentOffset = App.Placement(V(0, 0, -326.7864), App.Rotation())
sketch22.addGeometry(Part.Circle(V(16, 464, 0), V(0, 0, 1), 6), False)
sketch22.addConstraint([
    Sketcher.Constraint("Diameter", 0, Q("11.835 mm")),
    Sketcher.Constraint("DistanceY", -1, 1, 0, 3, Q("464 mm")),
    Sketcher.Constraint("DistanceX", -1, 1, 0, 3, Q("16.4463 mm")),
])
doc.recompute()
hole16 = doc.addObject("PartDesign::Hole", "Hole015")
body.addObject(hole16)
hole16.Profile = sketch22
hole16.ThreadType = "None"
hole16.Diameter = 11.835
hole16.DepthType = "Dimension"
hole16.Depth = 100
hole16.DrillPoint = "Flat"
hole16.Reversed = True

# Sketch on XZ plane
sketch23 = doc.addObject("Sketcher::SketchObject", "Sketch022")
body.addObject(sketch23)
sketch23.AttachmentSupport = (doc.XZ_Plane, [""])
sketch23.MapMode = "FlatFace"
sketch23.AttachmentOffset = App.Placement(V(0, 0, -326.7864), App.Rotation())
sketch23.addGeometry(Part.Circle(V(16, 382, 0), V(0, 0, 1), 6), False)
sketch23.addConstraint([
    Sketcher.Constraint("Diameter", 0, Q("11.835 mm")),
    Sketcher.Constraint("DistanceY", -1, 1, 0, 3, Q("382 mm")),
    Sketcher.Constraint("DistanceX", -1, 1, 0, 3, Q("16.4463 mm")),
])
doc.recompute()
hole17 = doc.addObject("PartDesign::Hole", "Hole016")
body.addObject(hole17)
hole17.Profile = sketch23
hole17.ThreadType = "None"
hole17.Diameter = 11.835
hole17.DepthType = "Dimension"
hole17.Depth = 100
hole17.DrillPoint = "Flat"
hole17.Reversed = True

# Sketch on XZ plane
sketch24 = doc.addObject("Sketcher::SketchObject", "Sketch023")
body.addObject(sketch24)
sketch24.AttachmentSupport = (doc.XZ_Plane, [""])
sketch24.MapMode = "FlatFace"
sketch24.AttachmentOffset = App.Placement(V(0, 0, -326.7864), App.Rotation())
sketch24.addGeometry(Part.Circle(V(16, 300, 0), V(0, 0, 1), 6), False)
sketch24.addConstraint([
    Sketcher.Constraint("Diameter", 0, Q("11.835 mm")),
    Sketcher.Constraint("DistanceY", -1, 1, 0, 3, Q("300 mm")),
    Sketcher.Constraint("DistanceX", -1, 1, 0, 3, Q("16.4463 mm")),
])
doc.recompute()
hole18 = doc.addObject("PartDesign::Hole", "Hole017")
body.addObject(hole18)
hole18.Profile = sketch24
hole18.ThreadType = "None"
hole18.Diameter = 11.835
hole18.DepthType = "Dimension"
hole18.Depth = 100
hole18.DrillPoint = "Flat"
hole18.Reversed = True

# Sketch on XZ plane
sketch25 = doc.addObject("Sketcher::SketchObject", "Sketch024")
body.addObject(sketch25)
sketch25.AttachmentSupport = (doc.XZ_Plane, [""])
sketch25.MapMode = "FlatFace"
sketch25.AttachmentOffset = App.Placement(V(0, 0, -326.7864), App.Rotation())
sketch25.addGeometry(Part.Circle(V(16, 218, 0), V(0, 0, 1), 6), False)
sketch25.addConstraint([
    Sketcher.Constraint("Diameter", 0, Q("11.835 mm")),
    Sketcher.Constraint("DistanceY", -1, 1, 0, 3, Q("218 mm")),
    Sketcher.Constraint("DistanceX", -1, 1, 0, 3, Q("16.4463 mm")),
])
doc.recompute()
hole19 = doc.addObject("PartDesign::Hole", "Hole018")
body.addObject(hole19)
hole19.Profile = sketch25
hole19.ThreadType = "None"
hole19.Diameter = 11.835
hole19.DepthType = "Dimension"
hole19.Depth = 100
hole19.DrillPoint = "Flat"
hole19.Reversed = True

# Sketch on XZ plane
sketch26 = doc.addObject("Sketcher::SketchObject", "Sketch025")
body.addObject(sketch26)
sketch26.AttachmentSupport = (doc.XZ_Plane, [""])
sketch26.MapMode = "FlatFace"
sketch26.AttachmentOffset = App.Placement(V(0, 0, -326.7864), App.Rotation())
sketch26.addGeometry(Part.Circle(V(16, 136, 0), V(0, 0, 1), 6), False)
sketch26.addConstraint([
    Sketcher.Constraint("Diameter", 0, Q("11.835 mm")),
    Sketcher.Constraint("DistanceY", -1, 1, 0, 3, Q("136 mm")),
    Sketcher.Constraint("DistanceX", -1, 1, 0, 3, Q("16.4463 mm")),
])
doc.recompute()
hole20 = doc.addObject("PartDesign::Hole", "Hole019")
body.addObject(hole20)
hole20.Profile = sketch26
hole20.ThreadType = "None"
hole20.Diameter = 11.835
hole20.DepthType = "Dimension"
hole20.Depth = 100
hole20.DrillPoint = "Flat"
hole20.Reversed = True

# Sketch on XY plane
sketch27 = doc.addObject("Sketcher::SketchObject", "Sketch026")
body.addObject(sketch27)
sketch27.AttachmentSupport = (doc.XY_Plane, [""])
sketch27.MapMode = "FlatFace"
sketch27.AttachmentOffset = App.Placement(V(0, 0, 470), App.Rotation())
sketch27.addGeometry(Part.Circle(V(622, -473, 0), V(0, 0, 1), 5), False)
sketch27.addConstraint([
    Sketcher.Constraint("Diameter", 0, Q("10.106 mm")),
    Sketcher.Constraint("DistanceX", -1, 1, 0, 3, Q("622.4463 mm")),
    Sketcher.Constraint("DistanceY", 0, 3, -1, 1, Q("473.2136 mm")),
])
doc.recompute()
hole21 = doc.addObject("PartDesign::Hole", "Hole020")
body.addObject(hole21)
hole21.Profile = sketch27
hole21.ThreadType = "None"
hole21.Diameter = 10.106
hole21.DepthType = "Dimension"
hole21.Depth = 25
hole21.DrillPoint = "Flat"
hole21.Reversed = True

# Sketch on XY plane
sketch28 = doc.addObject("Sketcher::SketchObject", "Sketch027")
body.addObject(sketch28)
sketch28.AttachmentSupport = (doc.XY_Plane, [""])
sketch28.MapMode = "FlatFace"
sketch28.AttachmentOffset = App.Placement(V(0, 0, 470), App.Rotation())
sketch28.addGeometry(Part.Circle(V(622, 277, 0), V(0, 0, 1), 5), False)
sketch28.addConstraint([
    Sketcher.Constraint("Diameter", 0, Q("10.106 mm")),
    Sketcher.Constraint("DistanceX", -1, 1, 0, 3, Q("622.4463 mm")),
    Sketcher.Constraint("DistanceY", -1, 1, 0, 3, Q("276.7864 mm")),
])
doc.recompute()
hole22 = doc.addObject("PartDesign::Hole", "Hole021")
body.addObject(hole22)
hole22.Profile = sketch28
hole22.ThreadType = "None"
hole22.Diameter = 10.106
hole22.DepthType = "Dimension"
hole22.Depth = 25
hole22.DrillPoint = "Flat"
hole22.Reversed = True

# Sketch on XY plane
sketch29 = doc.addObject("Sketcher::SketchObject", "Sketch028")
body.addObject(sketch29)
sketch29.AttachmentSupport = (doc.XY_Plane, [""])
sketch29.MapMode = "FlatFace"
sketch29.AttachmentOffset = App.Placement(V(0, 0, 470), App.Rotation())
sketch29.addGeometry(Part.Circle(V(112, 277, 0), V(0, 0, 1), 5), False)
sketch29.addConstraint([
    Sketcher.Constraint("Diameter", 0, Q("10.106 mm")),
    Sketcher.Constraint("DistanceX", -1, 1, 0, 3, Q("112.4463 mm")),
    Sketcher.Constraint("DistanceY", -1, 1, 0, 3, Q("276.7864 mm")),
])
doc.recompute()
hole23 = doc.addObject("PartDesign::Hole", "Hole022")
body.addObject(hole23)
hole23.Profile = sketch29
hole23.ThreadType = "None"
hole23.Diameter = 10.106
hole23.DepthType = "Dimension"
hole23.Depth = 25
hole23.DrillPoint = "Flat"
hole23.Reversed = True

# Sketch on XY plane
sketch30 = doc.addObject("Sketcher::SketchObject", "Sketch029")
body.addObject(sketch30)
sketch30.AttachmentSupport = (doc.XY_Plane, [""])
sketch30.MapMode = "FlatFace"
sketch30.AttachmentOffset = App.Placement(V(0, 0, 470), App.Rotation())
sketch30.addGeometry(Part.Circle(V(112, -473, 0), V(0, 0, 1), 5), False)
sketch30.addConstraint([
    Sketcher.Constraint("Diameter", 0, Q("10.106 mm")),
    Sketcher.Constraint("DistanceX", -1, 1, 0, 3, Q("112.4463 mm")),
    Sketcher.Constraint("DistanceY", 0, 3, -1, 1, Q("473.2136 mm")),
])
doc.recompute()
hole24 = doc.addObject("PartDesign::Hole", "Hole023")
body.addObject(hole24)
hole24.Profile = sketch30
hole24.ThreadType = "None"
hole24.Diameter = 10.106
hole24.DepthType = "Dimension"
hole24.Depth = 25
hole24.DrillPoint = "Flat"
hole24.Reversed = True

doc.recompute()
